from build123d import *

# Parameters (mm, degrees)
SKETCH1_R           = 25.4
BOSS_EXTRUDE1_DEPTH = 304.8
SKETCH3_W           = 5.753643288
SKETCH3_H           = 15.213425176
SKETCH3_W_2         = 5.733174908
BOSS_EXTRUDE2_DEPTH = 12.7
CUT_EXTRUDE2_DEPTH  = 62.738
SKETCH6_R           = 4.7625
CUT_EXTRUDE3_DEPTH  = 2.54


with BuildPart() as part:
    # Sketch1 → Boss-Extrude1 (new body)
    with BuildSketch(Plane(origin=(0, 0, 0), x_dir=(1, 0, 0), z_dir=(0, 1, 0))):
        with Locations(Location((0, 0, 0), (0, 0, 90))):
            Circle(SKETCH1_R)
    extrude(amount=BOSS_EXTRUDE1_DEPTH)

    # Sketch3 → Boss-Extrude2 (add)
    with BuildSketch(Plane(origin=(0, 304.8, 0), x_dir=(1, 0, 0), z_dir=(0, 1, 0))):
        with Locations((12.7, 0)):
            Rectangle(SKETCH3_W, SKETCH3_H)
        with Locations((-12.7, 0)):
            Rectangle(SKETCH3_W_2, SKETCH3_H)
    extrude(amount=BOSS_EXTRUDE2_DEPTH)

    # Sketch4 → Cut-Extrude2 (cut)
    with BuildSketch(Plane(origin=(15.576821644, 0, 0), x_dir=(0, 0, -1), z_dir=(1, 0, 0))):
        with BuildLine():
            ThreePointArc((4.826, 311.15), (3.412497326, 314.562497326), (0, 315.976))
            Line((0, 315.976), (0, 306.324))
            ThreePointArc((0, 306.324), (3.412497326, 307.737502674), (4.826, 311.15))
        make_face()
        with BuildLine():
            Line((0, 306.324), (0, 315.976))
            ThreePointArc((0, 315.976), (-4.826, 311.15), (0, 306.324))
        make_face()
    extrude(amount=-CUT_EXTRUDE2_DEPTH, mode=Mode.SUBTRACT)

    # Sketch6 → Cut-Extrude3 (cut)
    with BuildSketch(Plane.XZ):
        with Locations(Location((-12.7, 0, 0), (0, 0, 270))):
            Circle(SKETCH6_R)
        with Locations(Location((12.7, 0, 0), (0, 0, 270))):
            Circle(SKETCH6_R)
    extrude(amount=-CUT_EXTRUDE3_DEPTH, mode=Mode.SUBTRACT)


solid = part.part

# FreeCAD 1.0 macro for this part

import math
import FreeCAD as App
import Part
import Sketcher
Q = App.Units.Quantity

doc = App.newDocument("Part")
body = doc.addObject("PartDesign::Body", "Body")

sketch1 = body.newObject("Sketcher::SketchObject", "Sketch")
sketch1.AttachmentSupport = (doc.getObject("XZ_Plane"), [""])
sketch1.MapMode = "FlatFace"
sketch1.addGeometry(Part.Circle(App.Vector(0, 0, 0), App.Vector(0, 0, 1), 25), False)
sketch1.addConstraint(Sketcher.Constraint("Coincident", 0, 3, -1, 1))
sketch1.addConstraint(Sketcher.Constraint("Diameter", 0, Q("2 in")))
pad1 = body.newObject("PartDesign::Pad", "Pad")
pad1.Profile = sketch1
pad1.Length = Q("12 in")
pad1.Reversed = True

sketch2 = body.newObject("Sketcher::SketchObject", "Sketch001")
sketch2.AttachmentSupport = (doc.getObject("XZ_Plane"), [""])
sketch2.MapMode = "FlatFace"
sketch2.AttachmentOffset = App.Placement(App.Vector(0, 0, -12 * 25.4), App.Rotation())
sketch2.addGeometry(Part.LineSegment(App.Vector(10, -8, 0), App.Vector(10, 8, 0)), False)
sketch2.addGeometry(Part.LineSegment(App.Vector(10, 8, 0), App.Vector(16, 8, 0)), False)
sketch2.addGeometry(Part.LineSegment(App.Vector(16, 8, 0), App.Vector(16, -8, 0)), False)
sketch2.addGeometry(Part.LineSegment(App.Vector(16, -8, 0), App.Vector(10, -8, 0)), False)
sketch2.addGeometry(Part.LineSegment(App.Vector(-16, -8, 0), App.Vector(-16, 8, 0)), False)
sketch2.addGeometry(Part.LineSegment(App.Vector(-16, 8, 0), App.Vector(-10, 8, 0)), False)
sketch2.addGeometry(Part.LineSegment(App.Vector(-10, 8, 0), App.Vector(-10, -8, 0)), False)
sketch2.addGeometry(Part.LineSegment(App.Vector(-10, -8, 0), App.Vector(-16, -8, 0)), False)
sketch2.addConstraint(Sketcher.Constraint("Coincident", 0, 2, 1, 1))
sketch2.addConstraint(Sketcher.Constraint("Coincident", 1, 2, 2, 1))
sketch2.addConstraint(Sketcher.Constraint("Coincident", 2, 2, 3, 1))
sketch2.addConstraint(Sketcher.Constraint("Coincident", 3, 2, 0, 1))
sketch2.addConstraint(Sketcher.Constraint("Coincident", 4, 2, 5, 1))
sketch2.addConstraint(Sketcher.Constraint("Coincident", 5, 2, 6, 1))
sketch2.addConstraint(Sketcher.Constraint("Coincident", 6, 2, 7, 1))
sketch2.addConstraint(Sketcher.Constraint("Coincident", 7, 2, 4, 1))
sketch2.addConstraint(Sketcher.Constraint("Vertical", 0))
sketch2.addConstraint(Sketcher.Constraint("Horizontal", 1))
sketch2.addConstraint(Sketcher.Constraint("Vertical", 2))
sketch2.addConstraint(Sketcher.Constraint("Horizontal", 3))
sketch2.addConstraint(Sketcher.Constraint("Vertical", 4))
sketch2.addConstraint(Sketcher.Constraint("Horizontal", 5))
sketch2.addConstraint(Sketcher.Constraint("Vertical", 6))
sketch2.addConstraint(Sketcher.Constraint("Horizontal", 7))
sketch2.addConstraint(Sketcher.Constraint("Horizontal", 1, 2, 4, 2))
sketch2.addConstraint(Sketcher.Constraint("Horizontal", 3, 2, 6, 2))
sketch2.addConstraint(Sketcher.Constraint("DistanceX", 1, 1, 1, 2, 5.753643))
sketch2.addConstraint(Sketcher.Constraint("DistanceX", 5, 1, 5, 2, 5.733175))
sketch2.addConstraint(Sketcher.Constraint("DistanceY", 0, 1, 0, 2, 15.213425))
sketch2.addConstraint(Sketcher.Constraint("DistanceX", -1, 1, 0, 2, 9.823178))
sketch2.addConstraint(Sketcher.Constraint("DistanceX", 4, 2, 1, 2, 31.143409))
sketch2.addConstraint(Sketcher.Constraint("DistanceY", -1, 1, 0, 2, 7.606713))
pad2 = body.newObject("PartDesign::Pad", "Pad001")
pad2.Profile = sketch2
pad2.Length = Q("0.5 in")
pad2.Reversed = True

sketch3 = body.newObject("Sketcher::SketchObject", "Sketch002")
sketch3.AttachmentSupport = (doc.getObject("YZ_Plane"), [""])
sketch3.MapMode = "FlatFace"
sketch3.AttachmentOffset = App.Placement(App.Vector(0, 0, 15.576822), App.Rotation())
sketch3.addGeometry(Part.ArcOfCircle(Part.Circle(App.Vector(311.1, 0, 0), App.Vector(0, 0, 1), 4.8), math.radians(-90), math.radians(0)), False)
sketch3.addGeometry(Part.ArcOfCircle(Part.Circle(App.Vector(311.1, 0, 0), App.Vector(0, 0, 1), 4.8), math.radians(0), math.radians(180)), False)
sketch3.addGeometry(Part.ArcOfCircle(Part.Circle(App.Vector(311.1, 0, 0), App.Vector(0, 0, 1), 4.8), math.radians(180), math.radians(270)), False)
sketch3.addConstraint(Sketcher.Constraint("Tangent", 0, 2, 1, 1))
sketch3.addConstraint(Sketcher.Constraint("Tangent", 1, 2, 2, 1))
sketch3.addConstraint(Sketcher.Constraint("Tangent", 2, 2, 0, 1))
sketch3.addConstraint(Sketcher.Constraint("PointOnObject", 0, 3, -1))
sketch3.addConstraint(Sketcher.Constraint("PointOnObject", 0, 2, -1))
sketch3.addConstraint(Sketcher.Constraint("PointOnObject", 1, 2, -1))
sketch3.addConstraint(Sketcher.Constraint("Vertical", 1, 3, 2, 2))
sketch3.addConstraint(Sketcher.Constraint("Radius", 0, Q("0.19 in")))
sketch3.addConstraint(Sketcher.Constraint("DistanceX", -1, 1, 0, 3, Q("12.25 in")))
pocket1 = body.newObject("PartDesign::Pocket", "Pocket")
pocket1.Profile = sketch3
pocket1.Length = Q("2.47 in")

sketch4 = body.newObject("Sketcher::SketchObject", "Sketch003")
sketch4.AttachmentSupport = (doc.getObject("XZ_Plane"), [""])
sketch4.MapMode = "FlatFace"
sketch4.addGeometry(Part.Circle(App.Vector(-12.7, 0, 0), App.Vector(0, 0, 1), 4.8), False)
sketch4.addGeometry(Part.Circle(App.Vector(12.7, 0, 0), App.Vector(0, 0, 1), 4.8), False)
sketch4.addConstraint(Sketcher.Constraint("Equal", 0, 1))
sketch4.addConstraint(Sketcher.Constraint("Symmetric", 0, 3, 1, 3, -1, 1))
sketch4.addConstraint(Sketcher.Constraint("PointOnObject", 0, 3, -1))
sketch4.addConstraint(Sketcher.Constraint("Diameter", 0, Q("0.375 in")))
sketch4.addConstraint(Sketcher.Constraint("DistanceX", 0, 3, 1, 3, Q("1 in")))
pocket2 = body.newObject("PartDesign::Pocket", "Pocket001")
pocket2.Profile = sketch4
pocket2.Length = Q("0.1 in")

doc.recompute()
